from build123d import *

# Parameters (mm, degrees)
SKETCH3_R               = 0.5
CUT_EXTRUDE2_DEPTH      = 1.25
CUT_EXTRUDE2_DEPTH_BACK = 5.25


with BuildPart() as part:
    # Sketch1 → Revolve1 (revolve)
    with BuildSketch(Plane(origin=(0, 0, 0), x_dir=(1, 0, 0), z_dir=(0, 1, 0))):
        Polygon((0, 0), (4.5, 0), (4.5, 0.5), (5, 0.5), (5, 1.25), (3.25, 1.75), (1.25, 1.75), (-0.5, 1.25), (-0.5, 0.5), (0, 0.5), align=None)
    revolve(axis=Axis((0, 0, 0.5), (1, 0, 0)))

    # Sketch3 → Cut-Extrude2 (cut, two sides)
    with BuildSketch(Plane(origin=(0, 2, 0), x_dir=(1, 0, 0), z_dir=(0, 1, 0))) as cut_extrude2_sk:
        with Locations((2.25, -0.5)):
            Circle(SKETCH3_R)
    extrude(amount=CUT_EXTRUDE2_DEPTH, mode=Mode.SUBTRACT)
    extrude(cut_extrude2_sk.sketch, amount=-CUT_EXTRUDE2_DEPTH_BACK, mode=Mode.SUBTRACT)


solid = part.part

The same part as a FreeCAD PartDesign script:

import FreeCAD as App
import Part
import Sketcher


def add_polygon(sketch, points):
    """Adds a closed chain of lines whose ends are joined by coincident constraints."""
    first, n = sketch.GeometryCount, len(points)
    for a, b in zip(points, points[1:] + points[:1]):
        sketch.addGeometry(Part.LineSegment(App.Vector(*a, 0), App.Vector(*b, 0)), False)
    for i in range(n):
        sketch.addConstraint(Sketcher.Constraint("Coincident", first + i, 2, first + (i + 1) % n, 1))

doc = App.newDocument("Part")
params = doc.addObject("Spreadsheet::Sheet", "Params")
for row, (alias, value) in enumerate([
    ("sketch1_width", "2 mm"),
    ("sketch1_width2", "4.5 mm"),
    ("sketch1_width3", "0.5 mm"),
    ("sketch1_height", "0.75 mm"),
    ("revolution_angle", "360 deg"),
    ("sketch2_diameter", "1 mm"),
], start=1):
    params.set(f"A{row}", alias)
    params.set(f"B{row}", "=" + value)
    params.setAlias(f"B{row}", alias)

body = doc.addObject("PartDesign::Body", "Body")

sketch1 = body.newObject("Sketcher::SketchObject", "Sketch")
sketch1.AttachmentSupport = (doc.getObject("XZ_Plane"), [""])
sketch1.MapMode = "FlatFace"
add_polygon(sketch1, [(0, 0), (4.5, 0), (4.5, -0.5), (5, -0.5), (5, -1.25), (3.25, -1.75), (1.25, -1.75), (-0.5, -1.25), (-0.5, -0.5), (0, -0.5)])
sketch1.addGeometry(Part.LineSegment(App.Vector(-0.5, 0.5, 0), App.Vector(5, 0.5, 0)), True)
sketch1.addConstraint(Sketcher.Constraint("Horizontal", 0))
sketch1.addConstraint(Sketcher.Constraint("Vertical", 1))
sketch1.addConstraint(Sketcher.Constraint("Horizontal", 2))
sketch1.addConstraint(Sketcher.Constraint("Vertical", 3))
sketch1.addConstraint(Sketcher.Constraint("Horizontal", 5))
sketch1.addConstraint(Sketcher.Constraint("Vertical", 7))
sketch1.addConstraint(Sketcher.Constraint("Horizontal", 8))
sketch1.addConstraint(Sketcher.Constraint("Vertical", 9))
sketch1.addConstraint(Sketcher.Constraint("Horizontal", 10))
sketch1.addConstraint(Sketcher.Constraint("Coincident", 9, 2, -1, 1))
sketch1.addConstraint(Sketcher.Constraint("Symmetric", 7, 2, 10, 1, -1))
sketch1.addConstraint(Sketcher.Constraint("Symmetric", 2, 2, 10, 2, -1))
sketch1.addConstraint(Sketcher.Constraint("Horizontal", 3, 2, 6, 2))
sketch1.addConstraint(Sketcher.Constraint("Equal", 2, 8))
sketch1.addConstraint(Sketcher.Constraint("Equal", 8, 1))
sketch1.addConstraint(Sketcher.Constraint("Equal", 4, 6))
sketch1.addConstraint(Sketcher.Constraint("DistanceX", 5, 2, 5, 1, 2.0))
sketch1.addConstraint(Sketcher.Constraint("DistanceX", 0, 1, 0, 2, 4.5))
sketch1.addConstraint(Sketcher.Constraint("DistanceX", 2, 1, 2, 2, 0.5))
sketch1.addConstraint(Sketcher.Constraint("DistanceY", 3, 2, 3, 1, 0.75))
sketch1.addConstraint(Sketcher.Constraint("DistanceY", 4, 2, 3, 2, 0.5))
sketch1.setExpression("Constraints[26]", "Params.sketch1_width")
sketch1.setExpression("Constraints[27]", "Params.sketch1_width2")
sketch1.setExpression("Constraints[28]", "Params.sketch1_width3")
sketch1.setExpression("Constraints[29]", "Params.sketch1_height")
revolution = body.newObject("PartDesign::Revolution", "Revolution")
revolution.Profile = sketch1
revolution.ReferenceAxis = (sketch1, ["Axis0"])
revolution.setExpression("Angle", "Params.revolution_angle")

sketch2 = body.newObject("Sketcher::SketchObject", "Sketch001")
sketch2.AttachmentSupport = (doc.getObject("XZ_Plane"), [""])
sketch2.MapMode = "FlatFace"
sketch2.AttachmentOffset = App.Placement(App.Vector(0, 0, -2), App.Rotation())
sketch2.addGeometry(Part.Circle(App.Vector(2.25, 0.5, 0), App.Vector(0, 0, 1), 0.5), False)
sketch2.addConstraint(Sketcher.Constraint("Diameter", 0, 1.0))
sketch2.addConstraint(Sketcher.Constraint("DistanceY", -1, 1, 0, 3, 0.5))
sketch2.addConstraint(Sketcher.Constraint("DistanceX", -1, 1, 0, 3, 2.25))
sketch2.setExpression("Constraints[0]", "Params.sketch2_diameter")
pocket1 = body.newObject("PartDesign::Pocket", "Pocket")
pocket1.Profile = sketch2
pocket1.Type = "ThroughAll"
pocket1.Midplane = True

doc.recompute()
